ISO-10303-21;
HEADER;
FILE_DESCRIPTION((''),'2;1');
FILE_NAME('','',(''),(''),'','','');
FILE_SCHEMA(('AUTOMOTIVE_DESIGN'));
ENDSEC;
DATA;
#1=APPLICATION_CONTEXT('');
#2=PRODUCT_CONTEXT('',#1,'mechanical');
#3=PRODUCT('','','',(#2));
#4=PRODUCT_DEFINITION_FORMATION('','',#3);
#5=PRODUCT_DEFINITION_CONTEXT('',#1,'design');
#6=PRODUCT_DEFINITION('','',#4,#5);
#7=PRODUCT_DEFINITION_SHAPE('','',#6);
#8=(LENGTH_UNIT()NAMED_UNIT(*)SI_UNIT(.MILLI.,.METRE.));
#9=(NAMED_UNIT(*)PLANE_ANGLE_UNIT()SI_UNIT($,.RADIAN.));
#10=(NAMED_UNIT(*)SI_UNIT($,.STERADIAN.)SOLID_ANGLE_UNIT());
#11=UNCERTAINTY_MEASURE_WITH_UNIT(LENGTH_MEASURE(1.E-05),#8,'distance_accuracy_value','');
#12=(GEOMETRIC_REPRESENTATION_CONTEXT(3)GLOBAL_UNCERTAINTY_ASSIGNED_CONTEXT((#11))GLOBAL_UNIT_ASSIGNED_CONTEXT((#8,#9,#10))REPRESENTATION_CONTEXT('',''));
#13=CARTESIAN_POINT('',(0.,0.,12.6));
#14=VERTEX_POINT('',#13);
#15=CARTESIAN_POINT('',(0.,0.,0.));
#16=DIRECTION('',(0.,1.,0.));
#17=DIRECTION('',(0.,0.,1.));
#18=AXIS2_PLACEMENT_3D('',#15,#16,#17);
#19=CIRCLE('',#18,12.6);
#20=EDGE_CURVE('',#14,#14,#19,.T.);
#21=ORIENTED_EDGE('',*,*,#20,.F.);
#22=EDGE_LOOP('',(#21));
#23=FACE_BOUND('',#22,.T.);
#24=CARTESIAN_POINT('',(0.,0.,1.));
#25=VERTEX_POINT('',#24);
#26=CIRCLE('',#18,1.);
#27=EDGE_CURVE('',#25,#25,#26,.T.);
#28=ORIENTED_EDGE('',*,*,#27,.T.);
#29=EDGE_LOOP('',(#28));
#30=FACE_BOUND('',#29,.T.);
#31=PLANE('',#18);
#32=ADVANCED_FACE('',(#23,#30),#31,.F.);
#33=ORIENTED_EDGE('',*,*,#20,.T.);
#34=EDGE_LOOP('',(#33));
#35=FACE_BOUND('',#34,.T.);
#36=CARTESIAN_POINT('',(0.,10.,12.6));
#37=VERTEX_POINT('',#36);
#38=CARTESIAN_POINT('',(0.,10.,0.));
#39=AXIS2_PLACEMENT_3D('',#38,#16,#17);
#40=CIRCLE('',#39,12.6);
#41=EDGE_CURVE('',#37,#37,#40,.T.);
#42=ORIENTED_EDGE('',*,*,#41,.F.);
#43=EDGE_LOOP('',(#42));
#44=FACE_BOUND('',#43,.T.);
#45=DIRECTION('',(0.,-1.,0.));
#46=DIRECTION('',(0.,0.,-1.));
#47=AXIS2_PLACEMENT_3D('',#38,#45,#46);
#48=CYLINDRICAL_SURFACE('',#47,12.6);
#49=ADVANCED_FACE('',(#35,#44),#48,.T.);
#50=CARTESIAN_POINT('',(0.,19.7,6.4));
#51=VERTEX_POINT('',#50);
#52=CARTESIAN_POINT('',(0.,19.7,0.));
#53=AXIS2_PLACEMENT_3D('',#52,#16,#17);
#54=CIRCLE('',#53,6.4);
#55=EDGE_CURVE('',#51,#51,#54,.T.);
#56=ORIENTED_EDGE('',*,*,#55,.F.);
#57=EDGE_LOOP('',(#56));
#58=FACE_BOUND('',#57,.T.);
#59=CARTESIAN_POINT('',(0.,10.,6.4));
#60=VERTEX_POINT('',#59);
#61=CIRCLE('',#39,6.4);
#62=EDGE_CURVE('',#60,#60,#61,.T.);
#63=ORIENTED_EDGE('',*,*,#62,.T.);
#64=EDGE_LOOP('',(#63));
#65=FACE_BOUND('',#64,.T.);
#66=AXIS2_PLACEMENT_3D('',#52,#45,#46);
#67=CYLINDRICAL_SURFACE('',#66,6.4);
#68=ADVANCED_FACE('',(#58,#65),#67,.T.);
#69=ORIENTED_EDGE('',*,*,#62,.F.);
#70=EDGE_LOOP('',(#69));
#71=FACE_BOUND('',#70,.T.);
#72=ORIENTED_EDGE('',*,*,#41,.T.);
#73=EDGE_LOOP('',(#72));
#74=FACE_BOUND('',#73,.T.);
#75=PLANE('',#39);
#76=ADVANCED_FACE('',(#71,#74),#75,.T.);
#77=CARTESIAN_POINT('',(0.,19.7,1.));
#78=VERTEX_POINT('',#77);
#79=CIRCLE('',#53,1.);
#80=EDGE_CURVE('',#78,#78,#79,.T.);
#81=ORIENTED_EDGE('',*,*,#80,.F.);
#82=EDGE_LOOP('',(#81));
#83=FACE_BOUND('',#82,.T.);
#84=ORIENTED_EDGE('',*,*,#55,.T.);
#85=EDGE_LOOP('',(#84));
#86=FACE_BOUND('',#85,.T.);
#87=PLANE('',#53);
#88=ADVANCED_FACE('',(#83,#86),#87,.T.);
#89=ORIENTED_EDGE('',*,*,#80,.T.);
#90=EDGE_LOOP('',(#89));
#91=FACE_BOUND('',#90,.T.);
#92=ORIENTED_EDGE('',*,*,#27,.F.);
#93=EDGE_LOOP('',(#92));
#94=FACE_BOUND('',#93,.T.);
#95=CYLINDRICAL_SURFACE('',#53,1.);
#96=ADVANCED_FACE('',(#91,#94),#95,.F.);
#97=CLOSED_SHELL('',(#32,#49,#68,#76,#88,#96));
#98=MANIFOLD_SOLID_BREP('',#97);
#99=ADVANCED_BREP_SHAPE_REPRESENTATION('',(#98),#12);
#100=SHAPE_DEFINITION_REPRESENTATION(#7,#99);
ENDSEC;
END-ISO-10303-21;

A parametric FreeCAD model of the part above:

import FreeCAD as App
import Part
import Sketcher
from FreeCAD import Vector

doc = App.newDocument("Part")
body = doc.addObject("PartDesign::Body", "Body")

sketch1 = body.newObject("Sketcher::SketchObject", "Sketch")
sketch1.AttachmentSupport = (doc.getObject("XZ_Plane"), [""])
sketch1.MapMode = "FlatFace"
sketch1.addGeometry(Part.Circle(Vector(0, 0, 0), Vector(0, 0, 1), 13), False)
sketch1.addConstraint([
    Sketcher.Constraint("Coincident", 0, 3, -1, 1),
    Sketcher.Constraint("Diameter", 0, 25.2),
])
pad1 = body.newObject("PartDesign::Pad", "Pad")
pad1.Profile = sketch1
pad1.Length = 10
pad1.Reversed = True

sketch2 = body.newObject("Sketcher::SketchObject", "Sketch001")
sketch2.AttachmentSupport = (doc.getObject("XZ_Plane"), [""])
sketch2.MapMode = "FlatFace"
sketch2.AttachmentOffset = App.Placement(Vector(0, 0, -10), App.Rotation())
sketch2.addGeometry(Part.Circle(Vector(0, 0, 0), Vector(0, 0, 1), 6), False)
sketch2.addConstraint([
    Sketcher.Constraint("Coincident", 0, 3, -1, 1),
    Sketcher.Constraint("Diameter", 0, 12.8),
])
pad2 = body.newObject("PartDesign::Pad", "Pad001")
pad2.Profile = sketch2
pad2.Length = 9.7
pad2.Reversed = True

sketch3 = body.newObject("Sketcher::SketchObject", "Sketch002")
sketch3.AttachmentSupport = (doc.getObject("XZ_Plane"), [""])
sketch3.MapMode = "FlatFace"
sketch3.AttachmentOffset = App.Placement(Vector(0, 0, -19.7), App.Rotation())
sketch3.addGeometry(Part.Circle(Vector(0, 0, 0), Vector(0, 0, 1), 1), False)
sketch3.addConstraint([
    Sketcher.Constraint("Coincident", 0, 3, -1, 1),
    Sketcher.Constraint("Diameter", 0, 2.0),
])
doc.recompute()
hole = body.newObject("PartDesign::Hole", "Hole")
hole.Profile = sketch3
hole.ThreadType = "None"
hole.Diameter = 2
hole.DepthType = "ThroughAll"
hole.Reversed = True

doc.recompute()
